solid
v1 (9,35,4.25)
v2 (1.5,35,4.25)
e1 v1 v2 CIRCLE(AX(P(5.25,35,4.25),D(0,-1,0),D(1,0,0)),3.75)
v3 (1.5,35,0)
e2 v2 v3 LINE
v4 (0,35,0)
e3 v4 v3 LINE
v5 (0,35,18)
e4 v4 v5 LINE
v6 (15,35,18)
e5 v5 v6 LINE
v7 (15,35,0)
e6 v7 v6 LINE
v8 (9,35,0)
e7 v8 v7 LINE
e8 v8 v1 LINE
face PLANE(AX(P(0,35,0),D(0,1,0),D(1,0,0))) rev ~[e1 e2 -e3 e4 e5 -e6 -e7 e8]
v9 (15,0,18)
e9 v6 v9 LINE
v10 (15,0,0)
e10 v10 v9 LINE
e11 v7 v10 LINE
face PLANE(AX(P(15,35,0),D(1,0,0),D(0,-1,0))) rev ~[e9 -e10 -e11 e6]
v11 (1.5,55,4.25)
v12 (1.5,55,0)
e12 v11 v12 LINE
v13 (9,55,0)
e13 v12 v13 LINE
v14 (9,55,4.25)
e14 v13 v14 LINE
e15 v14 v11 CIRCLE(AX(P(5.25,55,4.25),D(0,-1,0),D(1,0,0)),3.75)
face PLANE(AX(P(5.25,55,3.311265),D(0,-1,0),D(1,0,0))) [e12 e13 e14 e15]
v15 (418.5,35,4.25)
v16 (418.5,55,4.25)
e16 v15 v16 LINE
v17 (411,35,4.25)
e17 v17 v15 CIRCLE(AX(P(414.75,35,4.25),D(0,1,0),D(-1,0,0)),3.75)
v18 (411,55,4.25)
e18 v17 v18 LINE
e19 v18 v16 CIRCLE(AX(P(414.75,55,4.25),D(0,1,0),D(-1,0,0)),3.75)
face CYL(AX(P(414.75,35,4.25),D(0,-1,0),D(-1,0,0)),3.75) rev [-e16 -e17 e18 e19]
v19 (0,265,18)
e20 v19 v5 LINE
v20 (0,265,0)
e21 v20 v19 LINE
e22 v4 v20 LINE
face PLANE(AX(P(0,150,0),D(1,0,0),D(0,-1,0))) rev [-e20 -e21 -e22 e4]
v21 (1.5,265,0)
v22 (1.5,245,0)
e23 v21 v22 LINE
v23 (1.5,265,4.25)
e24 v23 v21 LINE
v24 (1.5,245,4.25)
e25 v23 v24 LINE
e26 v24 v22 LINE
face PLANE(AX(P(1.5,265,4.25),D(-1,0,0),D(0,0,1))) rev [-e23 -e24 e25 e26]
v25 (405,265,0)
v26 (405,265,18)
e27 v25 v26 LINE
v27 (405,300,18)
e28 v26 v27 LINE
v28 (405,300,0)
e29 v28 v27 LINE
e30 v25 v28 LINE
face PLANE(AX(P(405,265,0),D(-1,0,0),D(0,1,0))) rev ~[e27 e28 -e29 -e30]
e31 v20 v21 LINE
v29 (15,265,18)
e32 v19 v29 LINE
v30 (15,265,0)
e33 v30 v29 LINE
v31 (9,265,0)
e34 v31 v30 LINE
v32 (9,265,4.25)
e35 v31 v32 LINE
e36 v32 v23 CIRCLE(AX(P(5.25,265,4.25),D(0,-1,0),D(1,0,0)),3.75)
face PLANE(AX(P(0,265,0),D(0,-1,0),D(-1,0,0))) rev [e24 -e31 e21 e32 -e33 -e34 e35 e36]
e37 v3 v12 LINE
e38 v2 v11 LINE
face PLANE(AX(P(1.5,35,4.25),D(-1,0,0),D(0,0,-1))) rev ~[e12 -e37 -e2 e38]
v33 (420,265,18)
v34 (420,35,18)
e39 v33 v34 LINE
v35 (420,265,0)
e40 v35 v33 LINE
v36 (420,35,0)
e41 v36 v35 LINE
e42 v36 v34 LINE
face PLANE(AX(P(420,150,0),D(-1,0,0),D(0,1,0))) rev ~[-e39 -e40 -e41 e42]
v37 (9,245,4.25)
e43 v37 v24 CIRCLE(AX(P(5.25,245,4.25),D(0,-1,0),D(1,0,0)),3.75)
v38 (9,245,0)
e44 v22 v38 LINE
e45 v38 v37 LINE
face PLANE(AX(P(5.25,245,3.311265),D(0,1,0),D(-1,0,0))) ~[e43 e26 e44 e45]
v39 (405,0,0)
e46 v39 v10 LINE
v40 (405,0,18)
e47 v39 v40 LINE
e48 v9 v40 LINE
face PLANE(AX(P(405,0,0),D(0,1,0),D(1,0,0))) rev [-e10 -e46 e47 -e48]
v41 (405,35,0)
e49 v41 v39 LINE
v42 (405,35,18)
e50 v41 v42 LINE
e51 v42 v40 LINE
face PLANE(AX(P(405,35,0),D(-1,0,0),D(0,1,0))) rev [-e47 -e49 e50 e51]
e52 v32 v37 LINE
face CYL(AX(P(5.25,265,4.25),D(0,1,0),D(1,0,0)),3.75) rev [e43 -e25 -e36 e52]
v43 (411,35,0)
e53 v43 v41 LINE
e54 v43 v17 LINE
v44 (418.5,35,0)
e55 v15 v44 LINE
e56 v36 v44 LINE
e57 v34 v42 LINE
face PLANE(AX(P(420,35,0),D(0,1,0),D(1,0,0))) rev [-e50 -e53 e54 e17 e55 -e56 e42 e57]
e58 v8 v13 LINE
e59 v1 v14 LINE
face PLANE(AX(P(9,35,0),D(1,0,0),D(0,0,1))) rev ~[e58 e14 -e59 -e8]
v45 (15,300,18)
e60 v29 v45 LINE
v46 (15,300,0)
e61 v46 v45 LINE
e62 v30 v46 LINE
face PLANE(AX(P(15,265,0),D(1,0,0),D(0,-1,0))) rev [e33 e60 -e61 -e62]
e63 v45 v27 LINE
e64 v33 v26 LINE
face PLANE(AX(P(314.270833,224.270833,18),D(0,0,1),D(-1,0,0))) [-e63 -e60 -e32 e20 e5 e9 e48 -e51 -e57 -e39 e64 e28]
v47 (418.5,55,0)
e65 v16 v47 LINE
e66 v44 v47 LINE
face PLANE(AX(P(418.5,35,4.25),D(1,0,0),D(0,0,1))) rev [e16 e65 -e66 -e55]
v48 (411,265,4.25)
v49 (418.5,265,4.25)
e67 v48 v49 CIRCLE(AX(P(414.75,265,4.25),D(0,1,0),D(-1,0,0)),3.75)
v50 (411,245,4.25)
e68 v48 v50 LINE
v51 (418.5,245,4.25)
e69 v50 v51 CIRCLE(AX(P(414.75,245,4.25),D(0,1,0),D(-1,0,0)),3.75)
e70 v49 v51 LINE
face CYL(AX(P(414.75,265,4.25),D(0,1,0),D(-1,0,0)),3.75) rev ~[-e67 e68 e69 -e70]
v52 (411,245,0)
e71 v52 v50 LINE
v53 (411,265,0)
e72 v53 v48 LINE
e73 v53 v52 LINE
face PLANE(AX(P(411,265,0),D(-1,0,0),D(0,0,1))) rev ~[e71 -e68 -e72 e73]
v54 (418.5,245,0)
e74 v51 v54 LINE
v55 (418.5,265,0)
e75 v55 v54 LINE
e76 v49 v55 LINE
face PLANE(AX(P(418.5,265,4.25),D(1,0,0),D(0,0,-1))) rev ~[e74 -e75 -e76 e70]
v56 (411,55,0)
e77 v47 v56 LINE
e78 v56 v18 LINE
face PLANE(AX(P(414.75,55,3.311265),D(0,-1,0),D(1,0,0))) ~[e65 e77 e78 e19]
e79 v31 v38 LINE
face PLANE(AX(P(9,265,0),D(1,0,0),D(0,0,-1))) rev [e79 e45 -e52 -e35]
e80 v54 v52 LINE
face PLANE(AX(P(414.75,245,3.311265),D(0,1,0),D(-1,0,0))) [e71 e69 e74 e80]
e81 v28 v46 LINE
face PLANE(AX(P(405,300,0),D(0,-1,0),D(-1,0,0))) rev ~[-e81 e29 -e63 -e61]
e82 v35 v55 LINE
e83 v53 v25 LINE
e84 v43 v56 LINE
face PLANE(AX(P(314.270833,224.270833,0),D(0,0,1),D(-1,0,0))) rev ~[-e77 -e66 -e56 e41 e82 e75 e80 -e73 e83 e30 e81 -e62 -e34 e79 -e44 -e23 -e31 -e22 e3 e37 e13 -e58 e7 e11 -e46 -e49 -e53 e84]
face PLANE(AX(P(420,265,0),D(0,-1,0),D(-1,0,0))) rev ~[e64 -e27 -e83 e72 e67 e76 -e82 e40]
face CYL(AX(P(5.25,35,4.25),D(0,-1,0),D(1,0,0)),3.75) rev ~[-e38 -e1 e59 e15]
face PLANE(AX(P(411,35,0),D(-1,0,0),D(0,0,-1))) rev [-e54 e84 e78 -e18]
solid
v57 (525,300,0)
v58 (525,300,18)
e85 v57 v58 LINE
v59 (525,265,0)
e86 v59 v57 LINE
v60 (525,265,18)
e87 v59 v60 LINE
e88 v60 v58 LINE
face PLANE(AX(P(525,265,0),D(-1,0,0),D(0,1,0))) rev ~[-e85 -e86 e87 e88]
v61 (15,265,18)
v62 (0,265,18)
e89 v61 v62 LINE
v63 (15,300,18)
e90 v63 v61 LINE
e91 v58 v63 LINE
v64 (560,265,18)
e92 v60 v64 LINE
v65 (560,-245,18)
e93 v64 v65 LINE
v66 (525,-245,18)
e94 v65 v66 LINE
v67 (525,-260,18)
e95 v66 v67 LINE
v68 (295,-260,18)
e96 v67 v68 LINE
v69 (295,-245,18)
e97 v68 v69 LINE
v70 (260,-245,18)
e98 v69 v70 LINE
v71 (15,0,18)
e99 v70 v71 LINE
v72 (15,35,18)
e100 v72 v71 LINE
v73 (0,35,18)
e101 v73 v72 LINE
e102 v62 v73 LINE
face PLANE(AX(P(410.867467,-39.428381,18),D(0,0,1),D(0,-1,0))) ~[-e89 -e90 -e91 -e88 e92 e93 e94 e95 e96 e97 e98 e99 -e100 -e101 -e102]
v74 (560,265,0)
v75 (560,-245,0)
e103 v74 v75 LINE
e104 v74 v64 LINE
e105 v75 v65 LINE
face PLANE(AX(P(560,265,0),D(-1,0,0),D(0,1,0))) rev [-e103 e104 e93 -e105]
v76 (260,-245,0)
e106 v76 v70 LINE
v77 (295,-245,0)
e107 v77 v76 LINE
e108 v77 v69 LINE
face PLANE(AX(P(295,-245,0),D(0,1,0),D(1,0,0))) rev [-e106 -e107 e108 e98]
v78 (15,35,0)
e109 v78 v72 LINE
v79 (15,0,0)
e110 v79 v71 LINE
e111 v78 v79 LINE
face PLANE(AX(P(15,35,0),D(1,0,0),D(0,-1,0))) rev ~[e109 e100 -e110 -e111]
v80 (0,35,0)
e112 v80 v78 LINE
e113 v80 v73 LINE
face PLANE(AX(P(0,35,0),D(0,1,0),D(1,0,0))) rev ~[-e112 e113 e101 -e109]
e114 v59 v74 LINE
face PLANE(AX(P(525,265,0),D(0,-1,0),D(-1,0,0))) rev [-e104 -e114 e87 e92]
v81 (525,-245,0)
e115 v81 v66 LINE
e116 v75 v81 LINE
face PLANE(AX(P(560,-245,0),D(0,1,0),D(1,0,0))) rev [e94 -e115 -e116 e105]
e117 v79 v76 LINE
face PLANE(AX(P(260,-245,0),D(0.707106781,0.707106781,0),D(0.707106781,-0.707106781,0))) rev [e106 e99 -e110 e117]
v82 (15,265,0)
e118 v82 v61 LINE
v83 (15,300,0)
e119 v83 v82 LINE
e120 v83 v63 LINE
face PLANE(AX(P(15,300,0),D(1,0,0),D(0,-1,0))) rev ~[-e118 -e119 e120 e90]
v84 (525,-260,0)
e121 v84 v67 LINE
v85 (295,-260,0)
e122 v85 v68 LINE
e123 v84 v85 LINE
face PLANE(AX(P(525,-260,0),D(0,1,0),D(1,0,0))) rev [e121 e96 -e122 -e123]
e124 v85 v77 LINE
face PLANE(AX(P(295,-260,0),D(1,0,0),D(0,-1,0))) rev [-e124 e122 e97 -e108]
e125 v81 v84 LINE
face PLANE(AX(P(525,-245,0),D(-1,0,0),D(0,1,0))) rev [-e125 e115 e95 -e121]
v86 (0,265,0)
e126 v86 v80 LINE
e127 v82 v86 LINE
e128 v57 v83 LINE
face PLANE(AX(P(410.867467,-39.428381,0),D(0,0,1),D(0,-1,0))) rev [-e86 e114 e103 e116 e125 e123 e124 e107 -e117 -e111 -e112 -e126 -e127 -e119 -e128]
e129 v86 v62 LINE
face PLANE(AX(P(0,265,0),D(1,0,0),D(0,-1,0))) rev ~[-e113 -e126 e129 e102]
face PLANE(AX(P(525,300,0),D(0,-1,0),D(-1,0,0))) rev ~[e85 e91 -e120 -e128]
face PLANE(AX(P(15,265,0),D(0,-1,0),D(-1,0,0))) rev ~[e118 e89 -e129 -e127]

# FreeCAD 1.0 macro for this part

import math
import FreeCAD as App
import Part
import Sketcher

V = App.Vector
Q = App.Units.Quantity


def add_polygon(sketch, points):
    """Adds a closed chain of lines whose ends are joined by coincident constraints."""
    first, n = sketch.GeometryCount, len(points)
    for a, b in zip(points, points[1:] + points[:1]):
        sketch.addGeometry(Part.LineSegment(App.Vector(*a, 0), App.Vector(*b, 0)), False)
    for i in range(n):
        sketch.addConstraint(Sketcher.Constraint("Coincident", first + i, 2, first + (i + 1) % n, 1))

doc = App.newDocument("Part")
params = doc.addObject("Spreadsheet::Sheet", "Params")
for row, (alias, value) in enumerate([
    ("sketch1_width", "195 mm"),
    ("sketch1_width2", "210 mm"),
    ("sketch1_height", "35 mm"),
    ("sketch1_height2", "150 mm"),
    ("pad1_length", "18 mm"),
    ("sketch2_radius", "3.75 mm"),
    ("sketch2_height", "4.25 mm"),
    ("pocket1_length", "20 mm"),
    ("sketch3_width", "510 mm"),
    ("sketch3_width2", "15 mm"),
    ("sketch3_height", "35 mm"),
    ("sketch3_height2", "230 mm"),
    ("pad2_length", "18 mm"),
], start=1):
    params.set(f"A{row}", alias)
    params.set(f"B{row}", "=" + value)
    params.setAlias(f"B{row}", alias)

body = doc.addObject("PartDesign::Body", "Body")

# Sketch on XY plane
sketch1 = body.newObject("Sketcher::SketchObject", "Sketch")
sketch1.AttachmentSupport = (doc.getObject("XY_Plane"), [""])
sketch1.MapMode = "FlatFace"
add_polygon(sketch1, [(15, 35), (15, 0), (210, 0), (210, 150), (0, 150), (0, 35)])  # lines 0-5
sketch1.addConstraint(Sketcher.Constraint("Vertical", 0))
sketch1.addConstraint(Sketcher.Constraint("Horizontal", 1))
sketch1.addConstraint(Sketcher.Constraint("Vertical", 2))
sketch1.addConstraint(Sketcher.Constraint("Horizontal", 3))
sketch1.addConstraint(Sketcher.Constraint("Vertical", 4))
sketch1.addConstraint(Sketcher.Constraint("Horizontal", 5))
sketch1.addConstraint(Sketcher.Constraint("PointOnObject", 0, 2, -1))
sketch1.addConstraint(Sketcher.Constraint("PointOnObject", 3, 2, -2))
sketch1.addConstraint(Sketcher.Constraint("DistanceX", 1, 1, 1, 2, 195.0))
sketch1.addConstraint(Sketcher.Constraint("DistanceX", 3, 2, 3, 1, 210.0))
sketch1.addConstraint(Sketcher.Constraint("DistanceY", 0, 2, 0, 1, 35.0))
sketch1.addConstraint(Sketcher.Constraint("DistanceY", 2, 1, 2, 2, 150.0))
sketch1.setExpression("Constraints[14]", "Params.sketch1_width")
sketch1.setExpression("Constraints[15]", "Params.sketch1_width2")
sketch1.setExpression("Constraints[16]", "Params.sketch1_height")
sketch1.setExpression("Constraints[17]", "Params.sketch1_height2")
pad1 = body.newObject("PartDesign::Pad", "Pad")
pad1.Profile = sketch1
pad1.setExpression("Length", "Params.pad1_length")

# Sketch on XZ plane
sketch2 = body.newObject("Sketcher::SketchObject", "Sketch001")
sketch2.AttachmentSupport = (doc.getObject("XZ_Plane"), [""])
sketch2.MapMode = "FlatFace"
sketch2.AttachmentOffset = App.Placement(V(0, 0, -35), App.Rotation())
sketch2.addGeometry(Part.LineSegment(V(9, 0, 0), V(9, 4.25, 0)), False)
sketch2.addGeometry(Part.ArcOfCircle(Part.Circle(V(5.25, 4.25, 0), V(0, 0, 1), 3.75), math.radians(0), math.radians(180)), False)
sketch2.addGeometry(Part.LineSegment(V(1.5, 4.25, 0), V(1.5, 0, 0)), False)
sketch2.addGeometry(Part.LineSegment(V(1.5, 0, 0), V(9, 0, 0)), False)
sketch2.addConstraint(Sketcher.Constraint("Tangent", 0, 2, 1, 1))
sketch2.addConstraint(Sketcher.Constraint("Tangent", 1, 2, 2, 1))
sketch2.addConstraint(Sketcher.Constraint("Coincident", 2, 2, 3, 1))
sketch2.addConstraint(Sketcher.Constraint("Coincident", 3, 2, 0, 1))
sketch2.addConstraint(Sketcher.Constraint("Vertical", 0))
sketch2.addConstraint(Sketcher.Constraint("Vertical", 2))
sketch2.addConstraint(Sketcher.Constraint("Horizontal", 3))
sketch2.addConstraint(Sketcher.Constraint("PointOnObject", 2, 2, -1))
sketch2.addConstraint(Sketcher.Constraint("Radius", 1, 3.75))
sketch2.addConstraint(Sketcher.Constraint("DistanceX", -1, 1, 0, 2, 9.0))
sketch2.addConstraint(Sketcher.Constraint("DistanceY", 0, 1, 0, 2, 4.25))
sketch2.setExpression("Constraints[8]", "Params.sketch2_radius")
sketch2.setExpression("Constraints[10]", "Params.sketch2_height")
pocket1 = body.newObject("PartDesign::Pocket", "Pocket")
pocket1.Profile = sketch2
pocket1.setExpression("Length", "Params.pocket1_length")
body2 = doc.addObject("PartDesign::Body", "Body001")
doc.recompute()

body2.BaseFeature = body
doc.recompute()

mirroring = doc.addObject("Part::Mirroring", "Mirroring")
mirroring.Source = body
mirroring.Base = V(105, 150, 9)
mirroring.Normal = V(0, 1, 0)
body3 = doc.addObject("PartDesign::Body", "Body002")
body3.BaseFeature = mirroring
boolean = body2.newObject("PartDesign::Boolean", "Boolean")
boolean.Type = "Fuse"
boolean.addObjects([body3])
doc.recompute()
body4 = doc.addObject("PartDesign::Body", "Body003")
doc.recompute()

body4.BaseFeature = body2
doc.recompute()

mirroring2 = doc.addObject("Part::Mirroring", "Mirroring001")
mirroring2.Source = body2
mirroring2.Base = V(210, 150, 9)
mirroring2.Normal = V(1, 0, 0)
body5 = doc.addObject("PartDesign::Body", "Body004")
body5.BaseFeature = mirroring2
boolean2 = body4.newObject("PartDesign::Boolean", "Boolean001")
boolean2.Type = "Fuse"
boolean2.addObjects([body5])
doc.recompute()
body6 = doc.addObject("PartDesign::Body", "Body005")

# Sketch on XY plane
sketch3 = body6.newObject("Sketcher::SketchObject", "Sketch002")
sketch3.AttachmentSupport = (doc.getObject("XY_Plane005"), [""])
sketch3.MapMode = "FlatFace"
add_polygon(sketch3, [(15, 35), (15, 0), (137.5, -122.5), (525, 265), (525, 300), (15, 300), (15, 265), (0, 265), (0, 35)])  # lines 0-8
sketch3.addConstraint(Sketcher.Constraint("Vertical", 0))
sketch3.addConstraint(Sketcher.Constraint("Vertical", 3))
sketch3.addConstraint(Sketcher.Constraint("Horizontal", 4))
sketch3.addConstraint(Sketcher.Constraint("Vertical", 5))
sketch3.addConstraint(Sketcher.Constraint("Horizontal", 6))
sketch3.addConstraint(Sketcher.Constraint("Vertical", 7))
sketch3.addConstraint(Sketcher.Constraint("Horizontal", 8))
sketch3.addConstraint(Sketcher.Constraint("PointOnObject", 0, 2, -1))
sketch3.addConstraint(Sketcher.Constraint("PointOnObject", 6, 2, -2))
sketch3.addConstraint(Sketcher.Constraint("Perpendicular", 1, 2))
sketch3.addConstraint(Sketcher.Constraint("Horizontal", 2, 2, 5, 2))
sketch3.addConstraint(Sketcher.Constraint("Vertical", 0, 2, 4, 2))
sketch3.addConstraint(Sketcher.Constraint("Equal", 0, 3))
sketch3.addConstraint(Sketcher.Constraint("DistanceX", 4, 2, 4, 1, 510.0))
sketch3.addConstraint(Sketcher.Constraint("DistanceX", 6, 2, 6, 1, 15.0))
sketch3.addConstraint(Sketcher.Constraint("DistanceY", 0, 2, 0, 1, 35.0))
sketch3.addConstraint(Sketcher.Constraint("DistanceY", 7, 2, 7, 1, 230.0))
sketch3.addConstraint(Sketcher.Constraint("Angle", 1, Q("-45 deg")))
sketch3.setExpression("Constraints[22]", "Params.sketch3_width")
sketch3.setExpression("Constraints[23]", "Params.sketch3_width2")
sketch3.setExpression("Constraints[24]", "Params.sketch3_height")
sketch3.setExpression("Constraints[25]", "Params.sketch3_height2")
pad2 = body6.newObject("PartDesign::Pad", "Pad001")
pad2.Profile = sketch3
pad2.setExpression("Length", "Params.pad2_length")
body7 = doc.addObject("PartDesign::Body", "Body006")
doc.recompute()

body7.BaseFeature = body6
doc.recompute()

mirroring3 = doc.addObject("Part::Mirroring", "Mirroring002")
mirroring3.Source = body6
mirroring3.Base = V(331.25, 71.25, 9)
mirroring3.Normal = V(0.707106781, -0.707106781, 0)
body8 = doc.addObject("PartDesign::Body", "Body007")
body8.BaseFeature = mirroring3
boolean3 = body7.newObject("PartDesign::Boolean", "Boolean002")
boolean3.Type = "Fuse"
boolean3.addObjects([body8])
doc.recompute()
mirroring.Visibility = False
mirroring2.Visibility = False
mirroring3.Visibility = False

doc.recompute()
